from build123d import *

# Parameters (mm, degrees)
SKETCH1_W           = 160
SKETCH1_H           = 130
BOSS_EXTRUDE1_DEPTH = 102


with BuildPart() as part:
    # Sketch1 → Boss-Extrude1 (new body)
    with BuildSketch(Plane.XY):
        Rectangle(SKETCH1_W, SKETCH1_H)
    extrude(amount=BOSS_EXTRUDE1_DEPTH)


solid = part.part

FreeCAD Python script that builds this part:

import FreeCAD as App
import Part
import Sketcher

V = App.Vector


def add_polygon(sketch, points):
    """Adds a closed chain of lines whose ends are joined by coincident constraints."""
    first, n = sketch.GeometryCount, len(points)
    for a, b in zip(points, points[1:] + points[:1]):
        sketch.addGeometry(Part.LineSegment(App.Vector(*a, 0), App.Vector(*b, 0)), False)
    for i in range(n):
        sketch.addConstraint(Sketcher.Constraint("Coincident", first + i, 2, first + (i + 1) % n, 1))

doc = App.newDocument("Part")
body = doc.addObject("PartDesign::Body", "Body")

# Sketch on XY plane
sketch1 = body.newObject("Sketcher::SketchObject", "Sketch")
sketch1.AttachmentSupport = (doc.getObject("XY_Plane"), [""])
sketch1.MapMode = "FlatFace"
add_polygon(sketch1, [(-80, 65), (-80, -65), (80, -65), (80, 65)])  # lines 0-3
sketch1.addConstraint([
    Sketcher.Constraint("Vertical", 0),
    Sketcher.Constraint("Horizontal", 1),
    Sketcher.Constraint("Vertical", 2),
    Sketcher.Constraint("Horizontal", 3),
    Sketcher.Constraint("Symmetric", 0, 2, 2, 2, -1, 1),
    Sketcher.Constraint("DistanceX", 1, 1, 1, 2, 160.0),
    Sketcher.Constraint("DistanceY", 0, 2, 0, 1, 130.0),
])
pad1 = body.newObject("PartDesign::Pad", "Pad")
pad1.Profile = sketch1
pad1.Length = 102

doc.recompute()
